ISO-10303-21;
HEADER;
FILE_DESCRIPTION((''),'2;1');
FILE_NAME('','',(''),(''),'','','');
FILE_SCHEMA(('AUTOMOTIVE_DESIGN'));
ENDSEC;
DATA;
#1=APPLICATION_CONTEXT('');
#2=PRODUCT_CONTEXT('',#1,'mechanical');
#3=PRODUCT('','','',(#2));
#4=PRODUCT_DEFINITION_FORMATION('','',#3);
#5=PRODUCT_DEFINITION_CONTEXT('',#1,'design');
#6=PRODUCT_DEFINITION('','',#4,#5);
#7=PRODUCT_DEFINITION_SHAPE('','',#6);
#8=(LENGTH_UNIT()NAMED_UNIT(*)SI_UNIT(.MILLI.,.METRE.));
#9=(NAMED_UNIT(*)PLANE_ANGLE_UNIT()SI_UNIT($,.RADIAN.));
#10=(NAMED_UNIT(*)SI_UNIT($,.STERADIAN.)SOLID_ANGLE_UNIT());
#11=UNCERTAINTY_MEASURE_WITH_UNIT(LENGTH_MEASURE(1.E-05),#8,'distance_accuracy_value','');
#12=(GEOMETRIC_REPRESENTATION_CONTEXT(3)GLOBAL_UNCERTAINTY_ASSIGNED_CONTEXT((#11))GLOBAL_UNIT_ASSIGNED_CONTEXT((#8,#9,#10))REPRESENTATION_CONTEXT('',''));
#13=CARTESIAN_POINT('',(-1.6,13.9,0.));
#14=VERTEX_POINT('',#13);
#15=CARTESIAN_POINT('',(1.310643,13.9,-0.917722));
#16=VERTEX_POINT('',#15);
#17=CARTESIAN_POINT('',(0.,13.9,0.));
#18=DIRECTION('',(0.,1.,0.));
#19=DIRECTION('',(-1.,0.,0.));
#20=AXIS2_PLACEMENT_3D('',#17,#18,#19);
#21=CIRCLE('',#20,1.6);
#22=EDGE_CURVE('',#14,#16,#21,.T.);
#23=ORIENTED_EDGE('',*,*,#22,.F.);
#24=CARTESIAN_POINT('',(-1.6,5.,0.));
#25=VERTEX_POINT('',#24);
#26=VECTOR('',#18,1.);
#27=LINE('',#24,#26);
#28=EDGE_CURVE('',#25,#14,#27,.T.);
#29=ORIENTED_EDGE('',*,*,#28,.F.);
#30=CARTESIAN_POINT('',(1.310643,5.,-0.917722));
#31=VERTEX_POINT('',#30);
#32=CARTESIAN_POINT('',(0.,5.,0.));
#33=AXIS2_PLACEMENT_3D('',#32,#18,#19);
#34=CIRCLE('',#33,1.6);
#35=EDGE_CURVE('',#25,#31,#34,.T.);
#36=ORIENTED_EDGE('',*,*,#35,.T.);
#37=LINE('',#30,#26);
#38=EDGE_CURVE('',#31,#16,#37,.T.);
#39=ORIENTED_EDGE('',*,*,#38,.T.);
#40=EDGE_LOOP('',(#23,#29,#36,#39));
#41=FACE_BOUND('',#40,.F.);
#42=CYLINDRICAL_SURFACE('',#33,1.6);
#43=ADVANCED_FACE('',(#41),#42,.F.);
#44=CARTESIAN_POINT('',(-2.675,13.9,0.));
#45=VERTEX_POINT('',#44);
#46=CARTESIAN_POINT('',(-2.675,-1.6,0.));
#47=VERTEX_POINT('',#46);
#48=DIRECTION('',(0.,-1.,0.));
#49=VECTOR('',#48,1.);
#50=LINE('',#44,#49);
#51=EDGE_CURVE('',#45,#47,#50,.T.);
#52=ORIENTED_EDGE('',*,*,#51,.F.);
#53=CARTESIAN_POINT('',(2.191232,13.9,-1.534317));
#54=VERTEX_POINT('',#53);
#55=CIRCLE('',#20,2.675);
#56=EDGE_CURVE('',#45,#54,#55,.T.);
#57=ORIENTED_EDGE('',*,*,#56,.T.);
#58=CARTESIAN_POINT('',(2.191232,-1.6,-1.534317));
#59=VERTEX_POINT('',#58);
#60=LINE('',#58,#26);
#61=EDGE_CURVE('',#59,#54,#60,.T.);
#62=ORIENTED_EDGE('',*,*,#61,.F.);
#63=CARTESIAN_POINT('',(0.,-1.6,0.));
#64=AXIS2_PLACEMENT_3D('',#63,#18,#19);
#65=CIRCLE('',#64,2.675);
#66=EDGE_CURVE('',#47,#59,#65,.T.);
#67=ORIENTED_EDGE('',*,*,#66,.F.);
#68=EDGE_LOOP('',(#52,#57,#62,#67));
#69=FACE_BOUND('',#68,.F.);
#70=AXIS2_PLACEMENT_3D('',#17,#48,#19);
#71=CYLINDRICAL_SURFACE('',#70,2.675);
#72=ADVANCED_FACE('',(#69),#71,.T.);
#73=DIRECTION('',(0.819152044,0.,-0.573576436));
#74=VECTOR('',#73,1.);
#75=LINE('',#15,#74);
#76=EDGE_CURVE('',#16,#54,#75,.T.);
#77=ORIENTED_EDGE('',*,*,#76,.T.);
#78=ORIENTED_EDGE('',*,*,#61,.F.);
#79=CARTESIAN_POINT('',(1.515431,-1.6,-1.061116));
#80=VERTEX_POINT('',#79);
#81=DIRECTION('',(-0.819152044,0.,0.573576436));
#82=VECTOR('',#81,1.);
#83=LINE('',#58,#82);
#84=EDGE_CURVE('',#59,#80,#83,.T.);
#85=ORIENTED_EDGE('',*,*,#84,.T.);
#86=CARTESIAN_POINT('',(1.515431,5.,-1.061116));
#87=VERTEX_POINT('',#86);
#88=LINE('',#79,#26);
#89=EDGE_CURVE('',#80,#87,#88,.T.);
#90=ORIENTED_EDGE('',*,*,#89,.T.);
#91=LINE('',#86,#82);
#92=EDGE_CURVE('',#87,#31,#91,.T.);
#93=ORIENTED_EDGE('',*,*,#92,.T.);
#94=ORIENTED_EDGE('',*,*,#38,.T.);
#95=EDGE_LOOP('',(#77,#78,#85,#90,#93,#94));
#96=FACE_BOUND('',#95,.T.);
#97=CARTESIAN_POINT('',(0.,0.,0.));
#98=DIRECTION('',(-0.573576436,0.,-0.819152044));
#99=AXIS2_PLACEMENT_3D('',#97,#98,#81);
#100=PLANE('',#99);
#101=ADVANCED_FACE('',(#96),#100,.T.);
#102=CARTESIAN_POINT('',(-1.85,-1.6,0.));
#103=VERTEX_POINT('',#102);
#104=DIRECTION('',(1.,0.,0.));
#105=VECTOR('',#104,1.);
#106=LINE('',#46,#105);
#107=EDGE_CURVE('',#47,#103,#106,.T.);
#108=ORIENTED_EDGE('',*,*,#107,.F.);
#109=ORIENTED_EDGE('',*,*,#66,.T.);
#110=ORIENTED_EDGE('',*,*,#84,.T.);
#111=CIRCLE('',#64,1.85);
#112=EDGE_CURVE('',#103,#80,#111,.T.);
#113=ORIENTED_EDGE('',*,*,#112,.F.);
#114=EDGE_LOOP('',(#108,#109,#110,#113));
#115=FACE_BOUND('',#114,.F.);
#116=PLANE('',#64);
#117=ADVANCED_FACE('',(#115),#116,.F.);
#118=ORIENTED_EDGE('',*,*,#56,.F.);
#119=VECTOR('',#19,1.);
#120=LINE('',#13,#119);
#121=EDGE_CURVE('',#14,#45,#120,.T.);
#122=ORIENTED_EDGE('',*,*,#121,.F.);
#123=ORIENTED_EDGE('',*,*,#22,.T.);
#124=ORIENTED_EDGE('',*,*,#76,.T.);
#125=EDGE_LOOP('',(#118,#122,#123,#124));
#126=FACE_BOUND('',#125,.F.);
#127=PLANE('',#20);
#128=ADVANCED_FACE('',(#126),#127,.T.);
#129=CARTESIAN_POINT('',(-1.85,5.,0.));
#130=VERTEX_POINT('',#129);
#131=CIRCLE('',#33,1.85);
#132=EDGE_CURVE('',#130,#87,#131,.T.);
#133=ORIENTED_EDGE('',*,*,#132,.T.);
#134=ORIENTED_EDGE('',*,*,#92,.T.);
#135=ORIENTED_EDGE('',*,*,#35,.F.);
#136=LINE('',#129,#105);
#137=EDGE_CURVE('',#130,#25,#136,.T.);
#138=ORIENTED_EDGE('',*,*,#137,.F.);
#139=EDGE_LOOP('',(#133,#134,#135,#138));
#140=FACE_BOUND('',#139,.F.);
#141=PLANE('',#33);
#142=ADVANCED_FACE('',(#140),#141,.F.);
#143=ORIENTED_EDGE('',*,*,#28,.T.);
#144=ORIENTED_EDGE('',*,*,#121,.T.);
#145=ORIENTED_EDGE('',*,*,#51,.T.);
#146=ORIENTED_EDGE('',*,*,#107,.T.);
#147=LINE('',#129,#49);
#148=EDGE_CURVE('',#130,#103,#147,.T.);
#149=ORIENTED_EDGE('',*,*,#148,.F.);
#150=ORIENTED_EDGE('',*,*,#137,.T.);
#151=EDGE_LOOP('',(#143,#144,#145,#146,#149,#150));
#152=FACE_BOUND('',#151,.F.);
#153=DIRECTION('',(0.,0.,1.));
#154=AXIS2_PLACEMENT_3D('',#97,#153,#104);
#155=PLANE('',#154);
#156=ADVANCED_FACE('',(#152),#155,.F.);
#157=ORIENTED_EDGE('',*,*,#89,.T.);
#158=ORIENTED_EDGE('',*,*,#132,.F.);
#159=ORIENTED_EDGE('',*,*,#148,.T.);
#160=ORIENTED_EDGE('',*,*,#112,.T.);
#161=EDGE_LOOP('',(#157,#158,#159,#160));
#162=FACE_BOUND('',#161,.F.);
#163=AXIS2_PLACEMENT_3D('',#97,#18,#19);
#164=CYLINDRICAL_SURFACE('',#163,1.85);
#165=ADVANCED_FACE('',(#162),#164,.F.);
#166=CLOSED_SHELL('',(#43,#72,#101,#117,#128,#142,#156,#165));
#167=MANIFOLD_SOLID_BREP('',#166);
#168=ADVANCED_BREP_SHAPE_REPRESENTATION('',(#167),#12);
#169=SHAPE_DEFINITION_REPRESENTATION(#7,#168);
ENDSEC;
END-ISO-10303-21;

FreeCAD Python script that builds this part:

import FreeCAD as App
import Part
import Sketcher

V = App.Vector
Q = App.Units.Quantity


def add_polygon(sketch, points):
    """Adds a closed chain of lines whose ends are joined by coincident constraints."""
    first, n = sketch.GeometryCount, len(points)
    for a, b in zip(points, points[1:] + points[:1]):
        sketch.addGeometry(Part.LineSegment(App.Vector(*a, 0), App.Vector(*b, 0)), False)
    for i in range(n):
        sketch.addConstraint(Sketcher.Constraint("Coincident", first + i, 2, first + (i + 1) % n, 1))

doc = App.newDocument("Part")
body = doc.addObject("PartDesign::Body", "Body")

# Sketch on XY plane
sketch1 = doc.addObject("Sketcher::SketchObject", "Sketch")
body.addObject(sketch1)
sketch1.AttachmentSupport = (doc.XY_Plane, [""])
sketch1.MapMode = "FlatFace"
add_polygon(sketch1, [(-2.67, 13.9), (-2.67, -1.6), (-1.85, -1.6), (-1.85, 5), (-1.6, 5), (-1.6, 13.9)])  # lines 0-5
sketch1.addConstraint(Sketcher.Constraint("Vertical", 0))
sketch1.addConstraint(Sketcher.Constraint("Horizontal", 1))
sketch1.addConstraint(Sketcher.Constraint("Vertical", 2))
sketch1.addConstraint(Sketcher.Constraint("Horizontal", 3))
sketch1.addConstraint(Sketcher.Constraint("Vertical", 4))
sketch1.addConstraint(Sketcher.Constraint("Horizontal", 5))
sketch1.addConstraint(Sketcher.Constraint("DistanceY", -1, 1, 2, 2, Q("5 mm")))
sketch1.addConstraint(Sketcher.Constraint("DistanceY", 0, 2, -1, 1, Q("1.6 mm")))
sketch1.addConstraint(Sketcher.Constraint("DistanceX", 3, 2, -1, 1, Q("1.6 mm")))
sketch1.addConstraint(Sketcher.Constraint("DistanceY", -1, 1, 4, 2, Q("13.9 mm")))
sketch1.addConstraint(Sketcher.Constraint("DistanceX", 1, 2, -1, 1, Q("1.85 mm")))
sketch1.addConstraint(Sketcher.Constraint("DistanceX", 0, 2, -1, 1, Q("2.675 mm")))
revolution = doc.addObject("PartDesign::Revolution", "Revolution")
body.addObject(revolution)
revolution.Profile = sketch1
revolution.ReferenceAxis = (sketch1, ["V_Axis"])
revolution.Angle = 215

doc.recompute()
